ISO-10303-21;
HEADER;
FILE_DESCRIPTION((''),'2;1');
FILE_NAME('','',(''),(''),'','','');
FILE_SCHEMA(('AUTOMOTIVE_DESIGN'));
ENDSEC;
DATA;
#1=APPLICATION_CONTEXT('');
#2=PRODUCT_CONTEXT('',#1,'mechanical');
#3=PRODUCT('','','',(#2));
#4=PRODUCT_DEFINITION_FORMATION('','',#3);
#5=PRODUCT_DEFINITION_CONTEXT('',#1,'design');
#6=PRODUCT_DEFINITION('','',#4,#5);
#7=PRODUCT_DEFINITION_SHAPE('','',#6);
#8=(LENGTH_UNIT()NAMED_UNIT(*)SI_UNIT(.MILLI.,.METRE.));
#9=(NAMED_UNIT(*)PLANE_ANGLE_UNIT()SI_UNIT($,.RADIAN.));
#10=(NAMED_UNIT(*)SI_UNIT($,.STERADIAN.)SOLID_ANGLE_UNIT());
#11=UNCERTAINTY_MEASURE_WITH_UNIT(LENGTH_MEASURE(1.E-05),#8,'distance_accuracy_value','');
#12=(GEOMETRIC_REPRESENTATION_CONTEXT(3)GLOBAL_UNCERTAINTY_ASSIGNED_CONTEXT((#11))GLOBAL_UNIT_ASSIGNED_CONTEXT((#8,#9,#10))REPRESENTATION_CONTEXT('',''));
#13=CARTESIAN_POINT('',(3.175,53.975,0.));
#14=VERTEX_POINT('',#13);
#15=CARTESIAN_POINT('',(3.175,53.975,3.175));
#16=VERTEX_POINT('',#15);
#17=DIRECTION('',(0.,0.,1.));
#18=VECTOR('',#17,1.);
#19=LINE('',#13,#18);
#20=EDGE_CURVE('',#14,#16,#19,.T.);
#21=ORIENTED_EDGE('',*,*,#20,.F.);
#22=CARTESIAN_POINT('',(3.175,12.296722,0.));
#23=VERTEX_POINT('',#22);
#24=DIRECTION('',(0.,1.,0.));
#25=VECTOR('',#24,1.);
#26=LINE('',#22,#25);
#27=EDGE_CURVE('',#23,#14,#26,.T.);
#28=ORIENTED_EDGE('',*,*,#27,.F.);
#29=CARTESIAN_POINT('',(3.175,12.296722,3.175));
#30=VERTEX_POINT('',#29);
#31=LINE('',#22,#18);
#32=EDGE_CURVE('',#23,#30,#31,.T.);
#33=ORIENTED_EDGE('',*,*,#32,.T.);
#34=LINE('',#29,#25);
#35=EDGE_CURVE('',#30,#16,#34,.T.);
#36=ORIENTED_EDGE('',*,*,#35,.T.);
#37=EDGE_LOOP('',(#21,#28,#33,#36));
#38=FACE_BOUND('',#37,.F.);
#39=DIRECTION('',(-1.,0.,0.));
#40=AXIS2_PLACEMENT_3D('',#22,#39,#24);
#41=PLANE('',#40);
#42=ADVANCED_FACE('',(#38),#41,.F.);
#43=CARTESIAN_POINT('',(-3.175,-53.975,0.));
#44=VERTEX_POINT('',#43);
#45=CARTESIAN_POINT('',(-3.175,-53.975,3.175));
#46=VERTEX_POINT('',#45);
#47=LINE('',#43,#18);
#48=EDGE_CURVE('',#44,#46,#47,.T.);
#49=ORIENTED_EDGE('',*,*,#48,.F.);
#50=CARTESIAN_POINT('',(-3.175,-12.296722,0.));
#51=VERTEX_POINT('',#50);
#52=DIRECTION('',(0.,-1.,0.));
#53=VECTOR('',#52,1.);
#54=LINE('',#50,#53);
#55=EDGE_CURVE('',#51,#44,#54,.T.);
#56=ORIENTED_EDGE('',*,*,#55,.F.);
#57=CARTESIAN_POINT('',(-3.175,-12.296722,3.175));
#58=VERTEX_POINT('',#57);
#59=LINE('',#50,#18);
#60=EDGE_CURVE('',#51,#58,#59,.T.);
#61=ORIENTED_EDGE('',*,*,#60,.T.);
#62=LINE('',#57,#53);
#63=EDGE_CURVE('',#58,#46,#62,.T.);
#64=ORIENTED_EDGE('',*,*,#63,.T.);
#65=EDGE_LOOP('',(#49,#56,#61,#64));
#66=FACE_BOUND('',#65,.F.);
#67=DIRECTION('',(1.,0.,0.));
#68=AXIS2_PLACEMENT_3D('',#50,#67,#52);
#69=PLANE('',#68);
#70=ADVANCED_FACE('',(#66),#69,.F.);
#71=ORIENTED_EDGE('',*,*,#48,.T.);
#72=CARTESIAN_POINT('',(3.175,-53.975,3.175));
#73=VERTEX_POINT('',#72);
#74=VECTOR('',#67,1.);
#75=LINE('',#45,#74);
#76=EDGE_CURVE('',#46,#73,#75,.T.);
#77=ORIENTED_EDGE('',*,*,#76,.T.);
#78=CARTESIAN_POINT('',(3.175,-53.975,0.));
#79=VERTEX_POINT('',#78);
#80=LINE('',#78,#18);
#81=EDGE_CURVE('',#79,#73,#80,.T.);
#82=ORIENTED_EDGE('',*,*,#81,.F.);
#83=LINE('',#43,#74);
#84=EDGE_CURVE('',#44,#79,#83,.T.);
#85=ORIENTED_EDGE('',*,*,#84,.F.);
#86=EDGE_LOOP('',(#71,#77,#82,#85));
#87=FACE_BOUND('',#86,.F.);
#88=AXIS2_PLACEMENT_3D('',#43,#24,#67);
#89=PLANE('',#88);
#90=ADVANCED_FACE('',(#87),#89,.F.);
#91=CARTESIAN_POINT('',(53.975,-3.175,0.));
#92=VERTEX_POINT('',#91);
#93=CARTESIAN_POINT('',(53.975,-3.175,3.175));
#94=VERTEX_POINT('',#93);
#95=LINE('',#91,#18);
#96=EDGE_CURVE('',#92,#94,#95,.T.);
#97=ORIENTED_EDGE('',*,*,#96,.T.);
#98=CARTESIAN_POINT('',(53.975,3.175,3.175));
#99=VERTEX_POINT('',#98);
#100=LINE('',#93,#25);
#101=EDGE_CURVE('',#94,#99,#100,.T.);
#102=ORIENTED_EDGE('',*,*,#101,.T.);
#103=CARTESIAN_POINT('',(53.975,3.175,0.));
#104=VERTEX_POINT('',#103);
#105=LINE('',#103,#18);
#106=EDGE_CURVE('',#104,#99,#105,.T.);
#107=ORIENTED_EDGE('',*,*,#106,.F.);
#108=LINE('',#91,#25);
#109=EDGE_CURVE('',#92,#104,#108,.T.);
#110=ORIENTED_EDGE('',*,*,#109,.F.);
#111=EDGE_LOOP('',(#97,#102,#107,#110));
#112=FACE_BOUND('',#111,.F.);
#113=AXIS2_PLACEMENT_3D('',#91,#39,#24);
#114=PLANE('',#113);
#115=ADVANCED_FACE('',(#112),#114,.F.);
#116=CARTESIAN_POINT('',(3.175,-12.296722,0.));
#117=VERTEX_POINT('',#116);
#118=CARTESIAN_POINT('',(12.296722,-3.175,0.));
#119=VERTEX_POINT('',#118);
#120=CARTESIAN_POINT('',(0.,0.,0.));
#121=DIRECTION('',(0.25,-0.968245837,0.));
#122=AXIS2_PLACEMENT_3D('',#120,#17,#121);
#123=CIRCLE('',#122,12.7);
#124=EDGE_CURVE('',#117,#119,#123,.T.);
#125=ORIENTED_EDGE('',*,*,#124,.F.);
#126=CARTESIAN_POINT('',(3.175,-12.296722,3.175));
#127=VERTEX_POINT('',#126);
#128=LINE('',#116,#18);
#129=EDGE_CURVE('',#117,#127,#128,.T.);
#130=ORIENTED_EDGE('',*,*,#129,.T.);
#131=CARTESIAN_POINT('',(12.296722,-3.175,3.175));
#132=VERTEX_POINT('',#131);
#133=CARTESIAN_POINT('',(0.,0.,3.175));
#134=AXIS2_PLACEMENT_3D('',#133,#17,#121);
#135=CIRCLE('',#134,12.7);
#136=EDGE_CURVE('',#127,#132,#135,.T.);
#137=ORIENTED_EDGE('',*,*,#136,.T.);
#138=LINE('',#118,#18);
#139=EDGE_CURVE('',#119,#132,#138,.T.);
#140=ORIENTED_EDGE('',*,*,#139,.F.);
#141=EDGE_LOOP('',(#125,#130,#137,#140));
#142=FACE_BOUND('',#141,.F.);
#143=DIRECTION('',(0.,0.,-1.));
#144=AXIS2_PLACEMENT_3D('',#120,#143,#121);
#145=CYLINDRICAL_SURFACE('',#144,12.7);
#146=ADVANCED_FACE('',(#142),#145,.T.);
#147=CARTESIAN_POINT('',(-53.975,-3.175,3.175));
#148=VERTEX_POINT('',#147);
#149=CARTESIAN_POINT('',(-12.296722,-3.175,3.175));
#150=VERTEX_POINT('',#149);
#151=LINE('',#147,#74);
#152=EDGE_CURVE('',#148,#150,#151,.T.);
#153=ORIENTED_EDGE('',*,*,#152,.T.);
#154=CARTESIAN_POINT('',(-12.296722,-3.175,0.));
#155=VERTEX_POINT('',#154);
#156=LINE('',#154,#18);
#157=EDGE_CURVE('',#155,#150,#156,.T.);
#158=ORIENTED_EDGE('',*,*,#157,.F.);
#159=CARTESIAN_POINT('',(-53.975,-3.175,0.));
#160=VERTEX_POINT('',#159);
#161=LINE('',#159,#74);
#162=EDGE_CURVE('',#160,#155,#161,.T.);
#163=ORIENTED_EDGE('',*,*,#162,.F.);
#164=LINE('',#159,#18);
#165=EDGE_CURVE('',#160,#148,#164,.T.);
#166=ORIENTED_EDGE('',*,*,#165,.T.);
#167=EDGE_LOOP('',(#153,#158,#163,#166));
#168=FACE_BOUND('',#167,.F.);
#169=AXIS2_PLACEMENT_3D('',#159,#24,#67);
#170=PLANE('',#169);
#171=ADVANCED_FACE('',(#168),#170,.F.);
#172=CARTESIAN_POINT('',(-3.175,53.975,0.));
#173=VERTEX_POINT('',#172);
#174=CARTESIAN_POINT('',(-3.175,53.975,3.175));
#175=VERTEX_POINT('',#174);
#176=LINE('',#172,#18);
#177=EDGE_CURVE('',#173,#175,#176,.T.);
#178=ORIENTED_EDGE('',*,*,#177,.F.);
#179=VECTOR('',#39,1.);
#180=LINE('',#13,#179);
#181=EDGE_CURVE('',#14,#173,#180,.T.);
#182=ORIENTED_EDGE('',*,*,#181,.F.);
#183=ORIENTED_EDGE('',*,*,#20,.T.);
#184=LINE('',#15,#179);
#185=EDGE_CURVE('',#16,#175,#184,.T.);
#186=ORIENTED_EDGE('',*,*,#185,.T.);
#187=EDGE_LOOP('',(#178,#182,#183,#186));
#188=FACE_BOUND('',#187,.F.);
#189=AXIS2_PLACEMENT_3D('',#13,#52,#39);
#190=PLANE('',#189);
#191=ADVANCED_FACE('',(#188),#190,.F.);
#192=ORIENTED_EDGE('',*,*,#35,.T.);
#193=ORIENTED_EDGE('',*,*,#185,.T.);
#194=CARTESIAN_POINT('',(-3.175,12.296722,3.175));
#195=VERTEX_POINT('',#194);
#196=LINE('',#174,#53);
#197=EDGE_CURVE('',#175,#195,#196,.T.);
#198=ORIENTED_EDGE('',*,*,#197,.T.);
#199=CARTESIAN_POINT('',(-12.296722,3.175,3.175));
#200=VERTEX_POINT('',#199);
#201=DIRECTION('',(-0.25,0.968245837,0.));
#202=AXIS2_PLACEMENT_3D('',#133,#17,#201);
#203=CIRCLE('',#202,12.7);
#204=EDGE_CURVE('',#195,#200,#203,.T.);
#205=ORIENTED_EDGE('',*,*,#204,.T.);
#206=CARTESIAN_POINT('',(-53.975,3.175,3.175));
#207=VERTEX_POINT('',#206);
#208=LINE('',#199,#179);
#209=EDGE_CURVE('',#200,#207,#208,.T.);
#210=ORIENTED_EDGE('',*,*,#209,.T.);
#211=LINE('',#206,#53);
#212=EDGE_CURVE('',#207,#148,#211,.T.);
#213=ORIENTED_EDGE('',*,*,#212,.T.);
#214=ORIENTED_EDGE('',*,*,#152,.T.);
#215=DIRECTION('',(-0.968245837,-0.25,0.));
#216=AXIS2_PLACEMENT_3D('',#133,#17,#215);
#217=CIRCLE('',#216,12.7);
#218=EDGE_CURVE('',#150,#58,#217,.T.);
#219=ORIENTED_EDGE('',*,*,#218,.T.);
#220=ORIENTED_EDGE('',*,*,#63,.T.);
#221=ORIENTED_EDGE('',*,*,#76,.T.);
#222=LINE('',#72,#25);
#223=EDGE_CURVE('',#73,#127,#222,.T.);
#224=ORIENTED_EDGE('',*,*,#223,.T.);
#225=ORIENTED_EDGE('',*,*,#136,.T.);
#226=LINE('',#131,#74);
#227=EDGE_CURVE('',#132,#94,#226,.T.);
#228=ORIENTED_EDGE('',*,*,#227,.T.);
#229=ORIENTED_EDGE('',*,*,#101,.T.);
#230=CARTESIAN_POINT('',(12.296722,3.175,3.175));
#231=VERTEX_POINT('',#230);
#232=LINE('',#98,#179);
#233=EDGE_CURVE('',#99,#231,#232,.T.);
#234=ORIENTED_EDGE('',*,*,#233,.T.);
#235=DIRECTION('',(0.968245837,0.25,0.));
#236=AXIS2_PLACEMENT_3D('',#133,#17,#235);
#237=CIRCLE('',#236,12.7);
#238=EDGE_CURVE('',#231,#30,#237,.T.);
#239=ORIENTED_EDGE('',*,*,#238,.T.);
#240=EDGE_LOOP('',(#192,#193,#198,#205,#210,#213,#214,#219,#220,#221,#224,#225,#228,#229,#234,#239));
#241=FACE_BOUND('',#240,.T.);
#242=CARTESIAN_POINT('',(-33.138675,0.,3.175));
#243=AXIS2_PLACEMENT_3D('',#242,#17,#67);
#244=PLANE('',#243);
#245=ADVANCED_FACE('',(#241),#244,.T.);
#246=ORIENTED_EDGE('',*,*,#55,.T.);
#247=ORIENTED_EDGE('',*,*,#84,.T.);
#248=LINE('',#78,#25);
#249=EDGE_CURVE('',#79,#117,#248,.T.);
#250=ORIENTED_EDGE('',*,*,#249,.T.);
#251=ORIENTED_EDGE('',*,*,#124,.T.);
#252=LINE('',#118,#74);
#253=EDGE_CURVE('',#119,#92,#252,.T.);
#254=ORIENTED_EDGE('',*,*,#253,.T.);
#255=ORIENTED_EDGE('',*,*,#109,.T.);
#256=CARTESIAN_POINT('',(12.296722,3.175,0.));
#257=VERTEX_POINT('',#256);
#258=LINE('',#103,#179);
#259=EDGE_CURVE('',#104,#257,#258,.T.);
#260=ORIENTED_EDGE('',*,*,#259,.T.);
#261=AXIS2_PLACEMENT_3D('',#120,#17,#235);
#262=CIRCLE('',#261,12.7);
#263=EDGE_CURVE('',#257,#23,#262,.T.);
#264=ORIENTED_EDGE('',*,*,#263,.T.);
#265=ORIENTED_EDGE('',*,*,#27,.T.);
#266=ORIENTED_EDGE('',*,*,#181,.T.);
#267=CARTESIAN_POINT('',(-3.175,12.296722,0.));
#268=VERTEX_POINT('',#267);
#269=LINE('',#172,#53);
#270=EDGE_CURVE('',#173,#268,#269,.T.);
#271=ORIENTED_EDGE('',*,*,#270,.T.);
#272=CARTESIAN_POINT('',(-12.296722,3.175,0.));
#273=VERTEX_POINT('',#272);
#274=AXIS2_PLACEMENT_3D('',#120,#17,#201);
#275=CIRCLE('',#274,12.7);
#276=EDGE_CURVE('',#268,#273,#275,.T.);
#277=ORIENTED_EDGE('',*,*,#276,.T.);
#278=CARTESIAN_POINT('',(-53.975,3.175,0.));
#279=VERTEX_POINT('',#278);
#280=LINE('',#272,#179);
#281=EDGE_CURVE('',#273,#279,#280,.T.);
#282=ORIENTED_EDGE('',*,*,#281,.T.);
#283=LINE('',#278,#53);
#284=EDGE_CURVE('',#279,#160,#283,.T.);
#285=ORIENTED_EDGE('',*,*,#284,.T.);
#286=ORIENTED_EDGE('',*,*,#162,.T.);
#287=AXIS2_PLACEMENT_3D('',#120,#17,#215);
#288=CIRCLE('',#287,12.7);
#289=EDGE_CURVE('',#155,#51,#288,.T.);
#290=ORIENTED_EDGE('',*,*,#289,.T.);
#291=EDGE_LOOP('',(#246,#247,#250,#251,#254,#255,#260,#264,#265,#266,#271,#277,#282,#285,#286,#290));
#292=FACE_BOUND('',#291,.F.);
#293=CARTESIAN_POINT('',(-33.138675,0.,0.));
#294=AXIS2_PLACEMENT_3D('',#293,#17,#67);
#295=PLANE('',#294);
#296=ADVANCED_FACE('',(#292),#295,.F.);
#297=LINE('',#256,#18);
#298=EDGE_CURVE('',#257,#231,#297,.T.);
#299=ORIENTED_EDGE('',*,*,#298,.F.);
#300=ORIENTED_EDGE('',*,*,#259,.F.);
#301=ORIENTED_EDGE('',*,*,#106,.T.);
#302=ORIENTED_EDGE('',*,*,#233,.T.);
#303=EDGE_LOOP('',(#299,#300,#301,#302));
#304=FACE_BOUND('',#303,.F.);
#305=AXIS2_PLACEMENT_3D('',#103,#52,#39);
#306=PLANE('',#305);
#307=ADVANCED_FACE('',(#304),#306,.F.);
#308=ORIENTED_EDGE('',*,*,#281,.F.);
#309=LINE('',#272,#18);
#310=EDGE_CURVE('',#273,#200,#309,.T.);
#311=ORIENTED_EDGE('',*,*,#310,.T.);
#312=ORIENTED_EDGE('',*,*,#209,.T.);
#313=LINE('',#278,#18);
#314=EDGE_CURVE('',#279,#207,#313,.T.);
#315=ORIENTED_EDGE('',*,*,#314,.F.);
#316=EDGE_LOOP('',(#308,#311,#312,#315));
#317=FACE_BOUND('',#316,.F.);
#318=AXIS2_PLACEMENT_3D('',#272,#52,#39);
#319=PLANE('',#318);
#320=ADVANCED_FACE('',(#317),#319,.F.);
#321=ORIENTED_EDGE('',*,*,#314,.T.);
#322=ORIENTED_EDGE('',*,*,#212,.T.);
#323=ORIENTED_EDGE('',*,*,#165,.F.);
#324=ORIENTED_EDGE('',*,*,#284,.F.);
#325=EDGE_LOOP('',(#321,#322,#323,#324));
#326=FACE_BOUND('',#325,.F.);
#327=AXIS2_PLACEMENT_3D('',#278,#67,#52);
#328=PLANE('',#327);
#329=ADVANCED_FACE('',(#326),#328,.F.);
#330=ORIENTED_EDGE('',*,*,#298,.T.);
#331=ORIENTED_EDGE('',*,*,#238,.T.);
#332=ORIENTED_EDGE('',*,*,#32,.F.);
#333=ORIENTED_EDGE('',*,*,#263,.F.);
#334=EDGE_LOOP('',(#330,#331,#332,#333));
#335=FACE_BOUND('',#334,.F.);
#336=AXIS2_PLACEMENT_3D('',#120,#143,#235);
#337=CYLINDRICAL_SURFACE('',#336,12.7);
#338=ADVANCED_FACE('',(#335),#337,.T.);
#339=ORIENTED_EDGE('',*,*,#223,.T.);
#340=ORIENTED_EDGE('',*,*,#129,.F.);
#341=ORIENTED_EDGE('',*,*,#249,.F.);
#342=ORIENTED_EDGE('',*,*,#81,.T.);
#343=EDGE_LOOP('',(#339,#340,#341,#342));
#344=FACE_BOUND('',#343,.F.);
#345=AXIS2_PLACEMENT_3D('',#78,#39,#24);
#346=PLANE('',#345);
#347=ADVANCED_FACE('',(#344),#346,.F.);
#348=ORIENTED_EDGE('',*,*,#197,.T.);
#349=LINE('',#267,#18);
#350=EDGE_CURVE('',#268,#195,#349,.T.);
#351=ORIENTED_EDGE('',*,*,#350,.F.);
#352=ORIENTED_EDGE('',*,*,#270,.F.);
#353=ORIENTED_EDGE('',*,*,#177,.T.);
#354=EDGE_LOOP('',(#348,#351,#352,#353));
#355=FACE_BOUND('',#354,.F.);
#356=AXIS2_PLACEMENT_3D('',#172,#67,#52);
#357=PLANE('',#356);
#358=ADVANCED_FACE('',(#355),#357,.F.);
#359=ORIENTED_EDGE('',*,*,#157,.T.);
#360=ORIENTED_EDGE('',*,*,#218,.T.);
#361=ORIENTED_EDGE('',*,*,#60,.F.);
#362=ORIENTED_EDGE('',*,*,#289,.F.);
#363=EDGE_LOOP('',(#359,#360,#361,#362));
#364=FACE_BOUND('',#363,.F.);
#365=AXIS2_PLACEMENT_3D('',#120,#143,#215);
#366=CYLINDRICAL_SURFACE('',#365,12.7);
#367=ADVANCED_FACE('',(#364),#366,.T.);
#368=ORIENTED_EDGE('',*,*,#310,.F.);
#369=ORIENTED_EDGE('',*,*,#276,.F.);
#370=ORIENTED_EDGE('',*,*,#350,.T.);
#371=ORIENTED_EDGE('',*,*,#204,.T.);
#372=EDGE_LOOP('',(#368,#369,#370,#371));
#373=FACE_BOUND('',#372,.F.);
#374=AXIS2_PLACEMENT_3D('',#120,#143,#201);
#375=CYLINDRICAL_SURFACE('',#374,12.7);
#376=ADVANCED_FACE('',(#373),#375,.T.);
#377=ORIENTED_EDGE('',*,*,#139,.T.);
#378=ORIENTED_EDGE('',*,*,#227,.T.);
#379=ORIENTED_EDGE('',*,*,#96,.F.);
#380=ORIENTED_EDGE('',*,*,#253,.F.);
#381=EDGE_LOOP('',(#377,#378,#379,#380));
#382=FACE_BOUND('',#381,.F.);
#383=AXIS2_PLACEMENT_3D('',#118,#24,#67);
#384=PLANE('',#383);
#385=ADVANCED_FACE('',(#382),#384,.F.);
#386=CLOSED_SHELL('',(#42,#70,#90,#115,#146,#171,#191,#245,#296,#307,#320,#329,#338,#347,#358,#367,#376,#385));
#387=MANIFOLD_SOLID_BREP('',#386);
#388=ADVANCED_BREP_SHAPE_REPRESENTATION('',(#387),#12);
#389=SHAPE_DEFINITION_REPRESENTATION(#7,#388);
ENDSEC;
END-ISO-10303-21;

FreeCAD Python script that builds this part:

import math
import FreeCAD as App
import Part
import Sketcher
from FreeCAD import Vector
Q = App.Units.Quantity

doc = App.newDocument("Part")
body = doc.addObject("PartDesign::Body", "Body")

# Sketch on XY plane
sketch1 = body.newObject("Sketcher::SketchObject", "Sketch")
sketch1.AttachmentSupport = (doc.getObject("XY_Plane"), [""])
sketch1.MapMode = "FlatFace"
sketch1.addGeometry([
    Part.LineSegment(Vector(-12, 3, 0), Vector(-54, 3, 0)),  # 0
    Part.LineSegment(Vector(-54, 3, 0), Vector(-54, -3, 0)),  # 1
    Part.LineSegment(Vector(-54, -3, 0), Vector(-12, -3, 0)),  # 2
    Part.ArcOfCircle(Part.Circle(Vector(0, 0, 0), Vector(0, 0, 1), 13), math.radians(-166), math.radians(-104)),  # 3
    Part.LineSegment(Vector(-3, -12, 0), Vector(-3, -54, 0)),  # 4
    Part.LineSegment(Vector(-3, -54, 0), Vector(3, -54, 0)),  # 5
    Part.LineSegment(Vector(3, -54, 0), Vector(3, -12, 0)),  # 6
    Part.ArcOfCircle(Part.Circle(Vector(0, 0, 0), Vector(0, 0, 1), 13), math.radians(-76), math.radians(-14)),  # 7
    Part.LineSegment(Vector(12, -3, 0), Vector(54, -3, 0)),  # 8
    Part.LineSegment(Vector(54, -3, 0), Vector(54, 3, 0)),  # 9
    Part.LineSegment(Vector(54, 3, 0), Vector(12, 3, 0)),  # 10
    Part.ArcOfCircle(Part.Circle(Vector(0, 0, 0), Vector(0, 0, 1), 13), math.radians(14), math.radians(76)),  # 11
    Part.LineSegment(Vector(3, 12, 0), Vector(3, 54, 0)),  # 12
    Part.LineSegment(Vector(3, 54, 0), Vector(-3, 54, 0)),  # 13
    Part.LineSegment(Vector(-3, 54, 0), Vector(-3, 12, 0)),  # 14
    Part.ArcOfCircle(Part.Circle(Vector(0, 0, 0), Vector(0, 0, 1), 13), math.radians(104), math.radians(166)),  # 15
], False)
sketch1.addConstraint([
    Sketcher.Constraint("Coincident", 0, 2, 1, 1),
    Sketcher.Constraint("Coincident", 1, 2, 2, 1),
    Sketcher.Constraint("Coincident", 2, 2, 3, 1),
    Sketcher.Constraint("Coincident", 3, 2, 4, 1),
    Sketcher.Constraint("Coincident", 4, 2, 5, 1),
    Sketcher.Constraint("Coincident", 5, 2, 6, 1),
    Sketcher.Constraint("Coincident", 6, 2, 7, 1),
    Sketcher.Constraint("Coincident", 7, 2, 8, 1),
    Sketcher.Constraint("Coincident", 8, 2, 9, 1),
    Sketcher.Constraint("Coincident", 9, 2, 10, 1),
    Sketcher.Constraint("Coincident", 10, 2, 11, 1),
    Sketcher.Constraint("Coincident", 11, 2, 12, 1),
    Sketcher.Constraint("Coincident", 12, 2, 13, 1),
    Sketcher.Constraint("Coincident", 13, 2, 14, 1),
    Sketcher.Constraint("Coincident", 14, 2, 15, 1),
    Sketcher.Constraint("Coincident", 15, 2, 0, 1),
    Sketcher.Constraint("Horizontal", 0),
    Sketcher.Constraint("Vertical", 1),
    Sketcher.Constraint("Horizontal", 2),
    Sketcher.Constraint("Vertical", 4),
    Sketcher.Constraint("Horizontal", 5),
    Sketcher.Constraint("Vertical", 6),
    Sketcher.Constraint("Horizontal", 8),
    Sketcher.Constraint("Vertical", 9),
    Sketcher.Constraint("Horizontal", 10),
    Sketcher.Constraint("Vertical", 12),
    Sketcher.Constraint("Horizontal", 13),
    Sketcher.Constraint("Vertical", 14),
    Sketcher.Constraint("Coincident", 3, 3, -1, 1),
    Sketcher.Constraint("Coincident", 7, 3, -1, 1),
    Sketcher.Constraint("Coincident", 11, 3, -1, 1),
    Sketcher.Constraint("Coincident", 15, 3, -1, 1),
    Sketcher.Constraint("Equal", 3, 7),
    Sketcher.Constraint("Equal", 7, 11),
    Sketcher.Constraint("Equal", 11, 15),
    Sketcher.Constraint("Symmetric", 0, 2, 8, 2, -1, 1),
    Sketcher.Constraint("Symmetric", 4, 2, 12, 2, -1, 1),
    Sketcher.Constraint("Horizontal", 3, 2, 6, 2),
    Sketcher.Constraint("Horizontal", 2, 2, 7, 2),
    Sketcher.Constraint("Horizontal", 0, 2, 9, 2),
    Sketcher.Constraint("Horizontal", 11, 2, 14, 2),
    Sketcher.Constraint("Equal", 13, 1),
    Sketcher.Constraint("Equal", 10, 4),
    Sketcher.Constraint("Radius", 3, Q("0.5 in")),
    Sketcher.Constraint("DistanceY", 4, 2, 2, 2, Q("2 in")),
    Sketcher.Constraint("DistanceX", 5, 1, 5, 2, Q("0.25 in")),
])
pad1 = body.newObject("PartDesign::Pad", "Pad")
pad1.Profile = sketch1
pad1.Length = Q("0.125 in")

doc.recompute()
